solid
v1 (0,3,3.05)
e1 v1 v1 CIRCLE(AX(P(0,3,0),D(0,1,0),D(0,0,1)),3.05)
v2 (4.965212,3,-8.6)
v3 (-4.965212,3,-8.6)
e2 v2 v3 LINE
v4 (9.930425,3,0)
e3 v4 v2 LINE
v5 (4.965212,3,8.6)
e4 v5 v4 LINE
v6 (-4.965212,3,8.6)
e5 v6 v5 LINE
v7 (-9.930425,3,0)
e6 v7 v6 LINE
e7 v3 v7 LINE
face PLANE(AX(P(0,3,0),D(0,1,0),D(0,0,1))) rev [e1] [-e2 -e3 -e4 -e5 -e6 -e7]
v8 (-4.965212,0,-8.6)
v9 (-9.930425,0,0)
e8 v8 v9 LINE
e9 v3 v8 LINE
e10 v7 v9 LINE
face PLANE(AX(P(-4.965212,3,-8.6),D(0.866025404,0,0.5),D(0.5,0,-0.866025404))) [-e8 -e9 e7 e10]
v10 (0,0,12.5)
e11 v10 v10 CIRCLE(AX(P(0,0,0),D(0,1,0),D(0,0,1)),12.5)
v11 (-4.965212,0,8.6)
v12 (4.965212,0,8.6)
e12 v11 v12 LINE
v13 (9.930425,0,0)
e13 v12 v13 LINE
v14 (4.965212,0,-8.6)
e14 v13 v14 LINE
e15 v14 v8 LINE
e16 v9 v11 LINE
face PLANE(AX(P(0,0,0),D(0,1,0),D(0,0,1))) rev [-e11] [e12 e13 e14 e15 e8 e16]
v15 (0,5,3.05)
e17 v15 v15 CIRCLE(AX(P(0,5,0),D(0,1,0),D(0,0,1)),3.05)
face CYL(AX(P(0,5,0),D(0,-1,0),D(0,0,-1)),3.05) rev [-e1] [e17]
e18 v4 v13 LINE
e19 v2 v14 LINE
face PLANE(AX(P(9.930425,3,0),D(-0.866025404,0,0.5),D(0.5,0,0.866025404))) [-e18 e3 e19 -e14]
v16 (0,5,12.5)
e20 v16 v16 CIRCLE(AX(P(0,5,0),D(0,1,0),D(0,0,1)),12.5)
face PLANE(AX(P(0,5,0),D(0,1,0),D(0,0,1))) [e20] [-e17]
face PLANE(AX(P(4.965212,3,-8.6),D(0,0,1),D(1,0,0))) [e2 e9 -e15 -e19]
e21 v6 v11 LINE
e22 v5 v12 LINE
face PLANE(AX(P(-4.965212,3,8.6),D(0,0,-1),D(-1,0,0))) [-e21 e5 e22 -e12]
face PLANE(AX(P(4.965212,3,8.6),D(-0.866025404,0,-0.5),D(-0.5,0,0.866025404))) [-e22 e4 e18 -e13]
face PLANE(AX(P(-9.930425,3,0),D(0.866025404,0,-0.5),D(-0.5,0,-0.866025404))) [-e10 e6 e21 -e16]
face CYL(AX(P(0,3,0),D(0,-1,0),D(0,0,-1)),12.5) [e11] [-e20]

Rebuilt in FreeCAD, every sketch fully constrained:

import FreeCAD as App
import Part
import Sketcher

V = App.Vector
Q = App.Units.Quantity

doc = App.newDocument("Part")
body = doc.addObject("PartDesign::Body", "Body")

# Sketch on XZ plane
sketch1 = body.newObject("Sketcher::SketchObject", "Sketch")
sketch1.AttachmentSupport = (doc.getObject("XZ_Plane"), [""])
sketch1.MapMode = "FlatFace"
sketch1.addGeometry(Part.Circle(V(0, 0, 0), V(0, 0, 1), 12), False)
sketch1.addGeometry(Part.LineSegment(V(5, -9, 0), V(10, 0, 0)), False)
sketch1.addGeometry(Part.LineSegment(V(10, 0, 0), V(5, 9, 0)), False)
sketch1.addGeometry(Part.LineSegment(V(5, 9, 0), V(-5, 9, 0)), False)
sketch1.addGeometry(Part.LineSegment(V(-5, 9, 0), V(-10, 0, 0)), False)
sketch1.addGeometry(Part.LineSegment(V(-10, 0, 0), V(-5, -9, 0)), False)
sketch1.addGeometry(Part.LineSegment(V(-5, -9, 0), V(5, -9, 0)), False)
sketch1.addConstraint(Sketcher.Constraint("Coincident", 1, 2, 2, 1))
sketch1.addConstraint(Sketcher.Constraint("Coincident", 2, 2, 3, 1))
sketch1.addConstraint(Sketcher.Constraint("Coincident", 3, 2, 4, 1))
sketch1.addConstraint(Sketcher.Constraint("Coincident", 4, 2, 5, 1))
sketch1.addConstraint(Sketcher.Constraint("Coincident", 5, 2, 6, 1))
sketch1.addConstraint(Sketcher.Constraint("Coincident", 6, 2, 1, 1))
sketch1.addConstraint(Sketcher.Constraint("Horizontal", 3))
sketch1.addConstraint(Sketcher.Constraint("Horizontal", 6))
sketch1.addConstraint(Sketcher.Constraint("Coincident", 0, 3, -1, 1))
sketch1.addConstraint(Sketcher.Constraint("Symmetric", 1, 2, 4, 2, -1, 1))
sketch1.addConstraint(Sketcher.Constraint("Symmetric", 2, 2, 5, 2, -1, 1))
sketch1.addConstraint(Sketcher.Constraint("PointOnObject", 1, 2, -1))
sketch1.addConstraint(Sketcher.Constraint("Parallel", 1, 4))
sketch1.addConstraint(Sketcher.Constraint("Vertical", 3, 2, 5, 2))
sketch1.addConstraint(Sketcher.Constraint("Diameter", 0, 25.0))
sketch1.addConstraint(Sketcher.Constraint("Angle", 1, Q("60 deg")))
sketch1.addConstraint(Sketcher.Constraint("DistanceY", -1, 1, 2, 2, 8.6))
sketch1.addConstraint(Sketcher.Constraint("DistanceX", 3, 2, 3, 1, 9.930425))
pad1 = body.newObject("PartDesign::Pad", "Pad")
pad1.Profile = sketch1
pad1.Length = 3
pad1.Reversed = True

# Sketch on XZ plane
sketch2 = body.newObject("Sketcher::SketchObject", "Sketch001")
sketch2.AttachmentSupport = (doc.getObject("XZ_Plane"), [""])
sketch2.MapMode = "FlatFace"
sketch2.AttachmentOffset = App.Placement(V(0, 0, -3), App.Rotation())
sketch2.addGeometry(Part.Circle(V(0, 0, 0), V(0, 0, 1), 12.5), False)
sketch2.addGeometry(Part.Circle(V(0, 0, 0), V(0, 0, 1), 3), False)
sketch2.addConstraint(Sketcher.Constraint("Coincident", 0, 3, -1, 1))
sketch2.addConstraint(Sketcher.Constraint("Coincident", 1, 3, -1, 1))
sketch2.addConstraint(Sketcher.Constraint("Diameter", 0, 25.0))
sketch2.addConstraint(Sketcher.Constraint("Diameter", 1, 6.1))
pad2 = body.newObject("PartDesign::Pad", "Pad001")
pad2.Profile = sketch2
pad2.Length = 2
pad2.Reversed = True

doc.recompute()
